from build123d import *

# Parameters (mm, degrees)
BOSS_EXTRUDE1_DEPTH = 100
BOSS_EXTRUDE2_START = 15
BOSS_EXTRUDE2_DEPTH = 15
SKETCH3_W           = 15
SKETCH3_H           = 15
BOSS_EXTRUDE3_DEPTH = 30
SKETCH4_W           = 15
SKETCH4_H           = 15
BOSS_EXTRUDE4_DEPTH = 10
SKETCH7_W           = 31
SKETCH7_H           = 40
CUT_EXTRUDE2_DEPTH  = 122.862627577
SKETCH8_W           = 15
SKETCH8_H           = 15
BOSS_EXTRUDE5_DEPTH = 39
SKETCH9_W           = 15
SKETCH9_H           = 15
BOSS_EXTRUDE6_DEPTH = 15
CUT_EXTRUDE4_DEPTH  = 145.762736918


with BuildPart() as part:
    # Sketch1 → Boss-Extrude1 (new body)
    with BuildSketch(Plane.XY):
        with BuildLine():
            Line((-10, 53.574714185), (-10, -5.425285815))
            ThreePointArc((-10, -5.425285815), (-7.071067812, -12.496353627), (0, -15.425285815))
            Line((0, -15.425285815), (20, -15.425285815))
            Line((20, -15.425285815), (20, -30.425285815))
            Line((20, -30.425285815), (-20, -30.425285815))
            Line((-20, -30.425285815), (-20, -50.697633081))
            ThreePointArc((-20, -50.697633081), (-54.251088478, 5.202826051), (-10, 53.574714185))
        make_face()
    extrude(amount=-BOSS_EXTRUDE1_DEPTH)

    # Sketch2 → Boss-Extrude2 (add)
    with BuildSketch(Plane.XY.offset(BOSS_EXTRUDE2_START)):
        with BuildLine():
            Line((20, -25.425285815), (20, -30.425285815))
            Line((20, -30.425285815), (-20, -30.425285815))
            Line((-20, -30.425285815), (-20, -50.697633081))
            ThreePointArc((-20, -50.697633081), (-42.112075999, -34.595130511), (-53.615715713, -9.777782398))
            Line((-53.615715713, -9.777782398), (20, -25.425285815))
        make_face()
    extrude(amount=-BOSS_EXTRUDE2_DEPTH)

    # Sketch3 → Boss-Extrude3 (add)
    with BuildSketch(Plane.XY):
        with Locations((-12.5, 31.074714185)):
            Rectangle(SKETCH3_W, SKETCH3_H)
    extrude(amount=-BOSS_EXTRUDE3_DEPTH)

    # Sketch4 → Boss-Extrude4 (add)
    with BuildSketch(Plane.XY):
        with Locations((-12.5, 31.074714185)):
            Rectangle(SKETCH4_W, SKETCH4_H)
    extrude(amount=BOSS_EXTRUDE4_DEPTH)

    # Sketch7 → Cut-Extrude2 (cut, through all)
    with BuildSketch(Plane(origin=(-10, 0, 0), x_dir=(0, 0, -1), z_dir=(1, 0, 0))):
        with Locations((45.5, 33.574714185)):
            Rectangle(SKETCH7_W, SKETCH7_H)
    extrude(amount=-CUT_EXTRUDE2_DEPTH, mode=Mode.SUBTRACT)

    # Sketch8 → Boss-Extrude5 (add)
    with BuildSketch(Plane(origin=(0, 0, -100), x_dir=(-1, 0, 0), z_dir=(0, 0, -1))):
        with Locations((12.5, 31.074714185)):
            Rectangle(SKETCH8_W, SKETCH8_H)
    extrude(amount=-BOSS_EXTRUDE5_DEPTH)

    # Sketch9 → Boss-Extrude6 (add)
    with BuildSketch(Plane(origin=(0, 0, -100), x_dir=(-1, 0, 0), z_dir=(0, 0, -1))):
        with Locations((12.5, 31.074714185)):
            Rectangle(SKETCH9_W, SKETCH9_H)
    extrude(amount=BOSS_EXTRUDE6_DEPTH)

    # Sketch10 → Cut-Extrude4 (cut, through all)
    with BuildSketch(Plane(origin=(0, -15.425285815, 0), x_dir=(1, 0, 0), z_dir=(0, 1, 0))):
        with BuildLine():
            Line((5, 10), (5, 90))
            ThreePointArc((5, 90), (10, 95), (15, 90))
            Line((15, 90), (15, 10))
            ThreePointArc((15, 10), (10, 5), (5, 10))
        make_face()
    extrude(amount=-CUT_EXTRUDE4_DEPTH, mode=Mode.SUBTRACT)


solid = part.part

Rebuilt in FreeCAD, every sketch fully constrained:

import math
import FreeCAD as App
import Part
import Sketcher

V = App.Vector
Q = App.Units.Quantity

doc = App.newDocument("Part")
body = doc.addObject("PartDesign::Body", "Body")

# Sketch on XY plane
sketch1 = doc.addObject("Sketcher::SketchObject", "Sketch")
body.addObject(sketch1)
sketch1.AttachmentSupport = (doc.XY_Plane, [""])
sketch1.MapMode = "FlatFace"
sketch1.addGeometry([
    Part.LineSegment(V(-10, -5.425286, 0), V(-10, 53.574714, 0)),  # 0
    Part.ArcOfCircle(Part.Circle(V(0, 0, 0), V(0, 0, 1), 54.5), math.radians(100.57289), math.radians(248.470977)),  # 1
    Part.LineSegment(V(-20, -50.697633, 0), V(-20, -30.425286, 0)),  # 2
    Part.LineSegment(V(-20, -30.425286, 0), V(20, -30.425286, 0)),  # 3
    Part.LineSegment(V(20, -30.425286, 0), V(20, -15.425286, 0)),  # 4
    Part.LineSegment(V(20, -15.425286, 0), V(0, -15.425286, 0)),  # 5
    Part.ArcOfCircle(Part.Circle(V(0, -5.425286, 0), V(0, 0, 1), 10), math.radians(180), math.radians(270)),  # 6
], False)
sketch1.addConstraint([
    Sketcher.Constraint("Coincident", 0, 2, 1, 1),
    Sketcher.Constraint("Coincident", 1, 2, 2, 1),
    Sketcher.Constraint("Coincident", 2, 2, 3, 1),
    Sketcher.Constraint("Coincident", 3, 2, 4, 1),
    Sketcher.Constraint("Coincident", 4, 2, 5, 1),
    Sketcher.Constraint("Tangent", 5, 2, 6, 2),
    Sketcher.Constraint("Tangent", 6, 1, 0, 1),
    Sketcher.Constraint("Vertical", 0),
    Sketcher.Constraint("Vertical", 2),
    Sketcher.Constraint("Horizontal", 3),
    Sketcher.Constraint("Vertical", 4),
    Sketcher.Constraint("Horizontal", 5),
    Sketcher.Constraint("Coincident", 1, 3, -1, 1),
    Sketcher.Constraint("PointOnObject", 6, 3, -2),
    Sketcher.Constraint("Radius", 6, Q("10 mm")),
    Sketcher.Constraint("Radius", 1, Q("54.5 mm")),
    Sketcher.Constraint("DistanceX", 3, 1, 3, 2, Q("40 mm")),
    Sketcher.Constraint("DistanceX", 5, 2, 5, 1, Q("20 mm")),
    Sketcher.Constraint("DistanceY", 0, 1, 0, 2, Q("59 mm")),
    Sketcher.Constraint("DistanceY", 4, 1, 4, 2, Q("15 mm")),
])
pad1 = doc.addObject("PartDesign::Pad", "Pad")
body.addObject(pad1)
pad1.Profile = sketch1
pad1.Length = 100
pad1.Reversed = True

# Sketch on XY plane
sketch2 = doc.addObject("Sketcher::SketchObject", "Sketch001")
body.addObject(sketch2)
sketch2.AttachmentSupport = (doc.XY_Plane, [""])
sketch2.MapMode = "FlatFace"
sketch2.AttachmentOffset = App.Placement(V(0, 0, 15), App.Rotation())
sketch2.addGeometry([
    Part.LineSegment(V(20, -30.425286, 0), V(20, -25.425286, 0)),  # 0
    Part.LineSegment(V(20, -25.425286, 0), V(-53.615716, -9.777782, 0)),  # 1
    Part.ArcOfCircle(Part.Circle(V(0, 0, 0), V(0, 0, 1), 54.5), math.radians(-169.664671), math.radians(-111.529023)),  # 2
    Part.LineSegment(V(-20, -50.697633, 0), V(-20, -30.425286, 0)),  # 3
    Part.LineSegment(V(-20, -30.425286, 0), V(20, -30.425286, 0)),  # 4
], False)
sketch2.addConstraint([
    Sketcher.Constraint("Coincident", 0, 2, 1, 1),
    Sketcher.Constraint("Coincident", 1, 2, 2, 1),
    Sketcher.Constraint("Coincident", 2, 2, 3, 1),
    Sketcher.Constraint("Coincident", 3, 2, 4, 1),
    Sketcher.Constraint("Coincident", 4, 2, 0, 1),
    Sketcher.Constraint("Vertical", 0),
    Sketcher.Constraint("Vertical", 3),
    Sketcher.Constraint("Horizontal", 4),
    Sketcher.Constraint("Coincident", 2, 3, -1, 1),
    Sketcher.Constraint("Radius", 2, Q("54.5 mm")),
    Sketcher.Constraint("DistanceX", 4, 1, 4, 2, Q("40 mm")),
    Sketcher.Constraint("DistanceY", 0, 1, 0, 2, Q("5 mm")),
    Sketcher.Constraint("Angle", 1, Q("168 deg")),
    Sketcher.Constraint("DistanceX", -1, 1, 0, 2, Q("20 mm")),
    Sketcher.Constraint("DistanceY", 3, 1, 3, 2, Q("20.272347 mm")),
])
pad2 = doc.addObject("PartDesign::Pad", "Pad001")
body.addObject(pad2)
pad2.Profile = sketch2
pad2.Length = 15
pad2.Reversed = True

# Sketch on XY plane
sketch3 = doc.addObject("Sketcher::SketchObject", "Sketch002")
body.addObject(sketch3)
sketch3.AttachmentSupport = (doc.XY_Plane, [""])
sketch3.MapMode = "FlatFace"
sketch3.addGeometry([
    Part.LineSegment(V(-20, 38.574714, 0), V(-20, 23.574714, 0)),
    Part.LineSegment(V(-20, 23.574714, 0), V(-5, 23.574714, 0)),
    Part.LineSegment(V(-5, 23.574714, 0), V(-5, 38.574714, 0)),
    Part.LineSegment(V(-5, 38.574714, 0), V(-20, 38.574714, 0)),
], False)
sketch3.addConstraint([
    Sketcher.Constraint("Coincident", 0, 2, 1, 1),
    Sketcher.Constraint("Coincident", 1, 2, 2, 1),
    Sketcher.Constraint("Coincident", 2, 2, 3, 1),
    Sketcher.Constraint("Coincident", 3, 2, 0, 1),
    Sketcher.Constraint("Vertical", 0),
    Sketcher.Constraint("Horizontal", 1),
    Sketcher.Constraint("Vertical", 2),
    Sketcher.Constraint("Horizontal", 3),
    Sketcher.Constraint("Equal", 3, 0),
    Sketcher.Constraint("DistanceX", 1, 1, 1, 2, Q("15 mm")),
    Sketcher.Constraint("DistanceX", 0, 2, -1, 1, Q("20 mm")),
    Sketcher.Constraint("DistanceY", -1, 1, 0, 2, Q("23.574714 mm")),
])
pad3 = doc.addObject("PartDesign::Pad", "Pad002")
body.addObject(pad3)
pad3.Profile = sketch3
pad3.Length = 30
pad3.Reversed = True

# Sketch on XY plane
sketch4 = doc.addObject("Sketcher::SketchObject", "Sketch003")
body.addObject(sketch4)
sketch4.AttachmentSupport = (doc.XY_Plane, [""])
sketch4.MapMode = "FlatFace"
sketch4.addGeometry([
    Part.LineSegment(V(-20, 38.574714, 0), V(-20, 23.574714, 0)),
    Part.LineSegment(V(-20, 23.574714, 0), V(-5, 23.574714, 0)),
    Part.LineSegment(V(-5, 23.574714, 0), V(-5, 38.574714, 0)),
    Part.LineSegment(V(-5, 38.574714, 0), V(-20, 38.574714, 0)),
], False)
sketch4.addConstraint([
    Sketcher.Constraint("Coincident", 0, 2, 1, 1),
    Sketcher.Constraint("Coincident", 1, 2, 2, 1),
    Sketcher.Constraint("Coincident", 2, 2, 3, 1),
    Sketcher.Constraint("Coincident", 3, 2, 0, 1),
    Sketcher.Constraint("Vertical", 0),
    Sketcher.Constraint("Horizontal", 1),
    Sketcher.Constraint("Vertical", 2),
    Sketcher.Constraint("Horizontal", 3),
    Sketcher.Constraint("Equal", 3, 0),
    Sketcher.Constraint("DistanceX", 1, 1, 1, 2, Q("15 mm")),
    Sketcher.Constraint("DistanceX", 0, 2, -1, 1, Q("20 mm")),
    Sketcher.Constraint("DistanceY", -1, 1, 0, 2, Q("23.574714 mm")),
])
pad4 = doc.addObject("PartDesign::Pad", "Pad003")
body.addObject(pad4)
pad4.Profile = sketch4
pad4.Length = 10

# Sketch on YZ plane
sketch5 = doc.addObject("Sketcher::SketchObject", "Sketch004")
body.addObject(sketch5)
sketch5.AttachmentSupport = (doc.YZ_Plane, [""])
sketch5.MapMode = "FlatFace"
sketch5.AttachmentOffset = App.Placement(V(0, 0, -10), App.Rotation())
sketch5.addGeometry([
    Part.LineSegment(V(53.574714, -30, 0), V(13.574714, -30, 0)),
    Part.LineSegment(V(13.574714, -30, 0), V(13.574714, -61, 0)),
    Part.LineSegment(V(13.574714, -61, 0), V(53.574714, -61, 0)),
    Part.LineSegment(V(53.574714, -61, 0), V(53.574714, -30, 0)),
], False)
sketch5.addConstraint([
    Sketcher.Constraint("Coincident", 0, 2, 1, 1),
    Sketcher.Constraint("Coincident", 1, 2, 2, 1),
    Sketcher.Constraint("Coincident", 2, 2, 3, 1),
    Sketcher.Constraint("Coincident", 3, 2, 0, 1),
    Sketcher.Constraint("Horizontal", 0),
    Sketcher.Constraint("Vertical", 1),
    Sketcher.Constraint("Horizontal", 2),
    Sketcher.Constraint("Vertical", 3),
    Sketcher.Constraint("DistanceX", 0, 2, 0, 1, Q("40 mm")),
    Sketcher.Constraint("DistanceY", 1, 2, 1, 1, Q("31 mm")),
    Sketcher.Constraint("DistanceY", 0, 2, -1, 1, Q("30 mm")),
    Sketcher.Constraint("DistanceX", -1, 1, 0, 2, Q("13.574714 mm")),
])
pocket1 = doc.addObject("PartDesign::Pocket", "Pocket")
body.addObject(pocket1)
pocket1.Profile = sketch5
pocket1.Type = "ThroughAll"

# Sketch on XY plane
sketch6 = doc.addObject("Sketcher::SketchObject", "Sketch005")
body.addObject(sketch6)
sketch6.AttachmentSupport = (doc.XY_Plane, [""])
sketch6.MapMode = "FlatFace"
sketch6.AttachmentOffset = App.Placement(V(0, 0, -100), App.Rotation())
sketch6.addGeometry([
    Part.LineSegment(V(-5, 38.574714, 0), V(-5, 23.574714, 0)),
    Part.LineSegment(V(-5, 23.574714, 0), V(-20, 23.574714, 0)),
    Part.LineSegment(V(-20, 23.574714, 0), V(-20, 38.574714, 0)),
    Part.LineSegment(V(-20, 38.574714, 0), V(-5, 38.574714, 0)),
], False)
sketch6.addConstraint([
    Sketcher.Constraint("Coincident", 0, 2, 1, 1),
    Sketcher.Constraint("Coincident", 1, 2, 2, 1),
    Sketcher.Constraint("Coincident", 2, 2, 3, 1),
    Sketcher.Constraint("Coincident", 3, 2, 0, 1),
    Sketcher.Constraint("Vertical", 0),
    Sketcher.Constraint("Horizontal", 1),
    Sketcher.Constraint("Vertical", 2),
    Sketcher.Constraint("Horizontal", 3),
    Sketcher.Constraint("Equal", 3, 0),
    Sketcher.Constraint("DistanceX", 1, 2, 1, 1, Q("15 mm")),
    Sketcher.Constraint("DistanceX", 0, 2, -1, 1, Q("5 mm")),
    Sketcher.Constraint("DistanceY", -1, 1, 0, 2, Q("23.574714 mm")),
])
pad5 = doc.addObject("PartDesign::Pad", "Pad004")
body.addObject(pad5)
pad5.Profile = sketch6
pad5.Length = 39

# Sketch on XY plane
sketch7 = doc.addObject("Sketcher::SketchObject", "Sketch006")
body.addObject(sketch7)
sketch7.AttachmentSupport = (doc.XY_Plane, [""])
sketch7.MapMode = "FlatFace"
sketch7.AttachmentOffset = App.Placement(V(0, 0, -100), App.Rotation())
sketch7.addGeometry([
    Part.LineSegment(V(-5, 38.574714, 0), V(-5, 23.574714, 0)),
    Part.LineSegment(V(-5, 23.574714, 0), V(-20, 23.574714, 0)),
    Part.LineSegment(V(-20, 23.574714, 0), V(-20, 38.574714, 0)),
    Part.LineSegment(V(-20, 38.574714, 0), V(-5, 38.574714, 0)),
], False)
sketch7.addConstraint([
    Sketcher.Constraint("Coincident", 0, 2, 1, 1),
    Sketcher.Constraint("Coincident", 1, 2, 2, 1),
    Sketcher.Constraint("Coincident", 2, 2, 3, 1),
    Sketcher.Constraint("Coincident", 3, 2, 0, 1),
    Sketcher.Constraint("Vertical", 0),
    Sketcher.Constraint("Horizontal", 1),
    Sketcher.Constraint("Vertical", 2),
    Sketcher.Constraint("Horizontal", 3),
    Sketcher.Constraint("Equal", 3, 0),
    Sketcher.Constraint("DistanceX", 1, 2, 1, 1, Q("15 mm")),
    Sketcher.Constraint("DistanceX", 0, 2, -1, 1, Q("5 mm")),
    Sketcher.Constraint("DistanceY", -1, 1, 0, 2, Q("23.574714 mm")),
])
pad6 = doc.addObject("PartDesign::Pad", "Pad005")
body.addObject(pad6)
pad6.Profile = sketch7
pad6.Length = 15
pad6.Reversed = True

# Sketch on XZ plane
sketch8 = doc.addObject("Sketcher::SketchObject", "Sketch007")
body.addObject(sketch8)
sketch8.AttachmentSupport = (doc.XZ_Plane, [""])
sketch8.MapMode = "FlatFace"
sketch8.AttachmentOffset = App.Placement(V(0, 0, 15.425286), App.Rotation())
sketch8.addGeometry([
    Part.LineSegment(V(5, -90, 0), V(5, -10, 0)),
    Part.ArcOfCircle(Part.Circle(V(10, -10, 0), V(0, 0, 1), 5), math.radians(0), math.radians(180)),
    Part.LineSegment(V(15, -10, 0), V(15, -90, 0)),
    Part.ArcOfCircle(Part.Circle(V(10, -90, 0), V(0, 0, 1), 5), math.radians(180), math.radians(360)),
], False)
sketch8.addConstraint([
    Sketcher.Constraint("Tangent", 0, 2, 1, 2),
    Sketcher.Constraint("Tangent", 1, 1, 2, 1),
    Sketcher.Constraint("Tangent", 2, 2, 3, 2),
    Sketcher.Constraint("Tangent", 3, 1, 0, 1),
    Sketcher.Constraint("Vertical", 0),
    Sketcher.Constraint("Vertical", 2),
    Sketcher.Constraint("Radius", 1, Q("5 mm")),
    Sketcher.Constraint("DistanceY", 0, 1, 0, 2, Q("80 mm")),
    Sketcher.Constraint("DistanceX", -1, 1, 1, 3, Q("10 mm")),
    Sketcher.Constraint("DistanceY", 1, 3, -1, 1, Q("10 mm")),
])
pocket2 = doc.addObject("PartDesign::Pocket", "Pocket001")
body.addObject(pocket2)
pocket2.Profile = sketch8
pocket2.Type = "ThroughAll"
pocket2.Reversed = True

doc.recompute()
